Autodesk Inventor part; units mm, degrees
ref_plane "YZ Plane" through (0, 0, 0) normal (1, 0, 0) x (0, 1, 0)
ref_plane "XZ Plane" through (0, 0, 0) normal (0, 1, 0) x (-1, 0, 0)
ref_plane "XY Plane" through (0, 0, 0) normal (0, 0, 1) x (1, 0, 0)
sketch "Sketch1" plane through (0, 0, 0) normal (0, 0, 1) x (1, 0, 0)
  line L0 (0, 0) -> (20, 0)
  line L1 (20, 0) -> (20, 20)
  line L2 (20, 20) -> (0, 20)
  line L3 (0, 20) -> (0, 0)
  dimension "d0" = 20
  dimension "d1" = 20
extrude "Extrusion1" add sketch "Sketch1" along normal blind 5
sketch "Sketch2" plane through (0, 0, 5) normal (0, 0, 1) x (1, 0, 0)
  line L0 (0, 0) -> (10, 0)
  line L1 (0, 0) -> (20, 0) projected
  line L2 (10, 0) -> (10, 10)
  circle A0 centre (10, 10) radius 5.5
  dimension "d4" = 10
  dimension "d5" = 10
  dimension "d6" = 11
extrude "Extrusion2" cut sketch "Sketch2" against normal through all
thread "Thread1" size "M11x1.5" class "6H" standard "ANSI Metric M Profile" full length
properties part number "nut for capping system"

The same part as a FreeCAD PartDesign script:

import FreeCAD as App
import Part
import Sketcher
from FreeCAD import Vector
Q = App.Units.Quantity


def add_polygon(sketch, points):
    """Adds a closed chain of lines whose ends are joined by coincident constraints."""
    first, n = sketch.GeometryCount, len(points)
    for a, b in zip(points, points[1:] + points[:1]):
        sketch.addGeometry(Part.LineSegment(App.Vector(*a, 0), App.Vector(*b, 0)), False)
    for i in range(n):
        sketch.addConstraint(Sketcher.Constraint("Coincident", first + i, 2, first + (i + 1) % n, 1))

doc = App.newDocument("Part")
params = doc.addObject("Spreadsheet::Sheet", "Params")
for row, (alias, value) in enumerate([
    ("sketch1_width", "20 mm"),
    ("pad1_length", "5 mm"),
    ("sketch2_diameter", "11 mm"),
], start=1):
    params.set(f"A{row}", alias)
    params.set(f"B{row}", "=" + value)
    params.setAlias(f"B{row}", alias)

body = doc.addObject("PartDesign::Body", "Body")

# Sketch on XY plane
sketch1 = body.newObject("Sketcher::SketchObject", "Sketch")
sketch1.AttachmentSupport = (doc.getObject("XY_Plane"), [""])
sketch1.MapMode = "FlatFace"
add_polygon(sketch1, [(0, 20), (0, 0), (20, 0), (20, 20)])  # lines 0-3
sketch1.addConstraint([
    Sketcher.Constraint("Vertical", 0),
    Sketcher.Constraint("Horizontal", 1),
    Sketcher.Constraint("Vertical", 2),
    Sketcher.Constraint("Horizontal", 3),
    Sketcher.Constraint("Coincident", 0, 2, -1, 1),
    Sketcher.Constraint("Equal", 3, 0),
    Sketcher.Constraint("DistanceX", 1, 1, 1, 2, Q("20 mm")),
])
sketch1.setExpression("Constraints[10]", "Params.sketch1_width")
pad1 = body.newObject("PartDesign::Pad", "Pad")
pad1.Profile = sketch1
pad1.setExpression("Length", "Params.pad1_length")

# Sketch on XY plane
sketch2 = body.newObject("Sketcher::SketchObject", "Sketch001")
sketch2.AttachmentSupport = (doc.getObject("XY_Plane"), [""])
sketch2.MapMode = "FlatFace"
sketch2.AttachmentOffset = App.Placement(Vector(0, 0, 5), App.Rotation())
sketch2.addGeometry(Part.Circle(Vector(10, 10, 0), Vector(0, 0, 1), 6), False)
sketch2.addConstraint([
    Sketcher.Constraint("Diameter", 0, Q("11 mm")),
    Sketcher.Constraint("DistanceX", -1, 1, 0, 3, Q("10 mm")),
    Sketcher.Constraint("DistanceY", -1, 1, 0, 3, Q("10 mm")),
])
sketch2.setExpression("Constraints[0]", "Params.sketch2_diameter")
pocket1 = body.newObject("PartDesign::Pocket", "Pocket")
pocket1.Profile = sketch2
pocket1.Type = "ThroughAll"

doc.recompute()
